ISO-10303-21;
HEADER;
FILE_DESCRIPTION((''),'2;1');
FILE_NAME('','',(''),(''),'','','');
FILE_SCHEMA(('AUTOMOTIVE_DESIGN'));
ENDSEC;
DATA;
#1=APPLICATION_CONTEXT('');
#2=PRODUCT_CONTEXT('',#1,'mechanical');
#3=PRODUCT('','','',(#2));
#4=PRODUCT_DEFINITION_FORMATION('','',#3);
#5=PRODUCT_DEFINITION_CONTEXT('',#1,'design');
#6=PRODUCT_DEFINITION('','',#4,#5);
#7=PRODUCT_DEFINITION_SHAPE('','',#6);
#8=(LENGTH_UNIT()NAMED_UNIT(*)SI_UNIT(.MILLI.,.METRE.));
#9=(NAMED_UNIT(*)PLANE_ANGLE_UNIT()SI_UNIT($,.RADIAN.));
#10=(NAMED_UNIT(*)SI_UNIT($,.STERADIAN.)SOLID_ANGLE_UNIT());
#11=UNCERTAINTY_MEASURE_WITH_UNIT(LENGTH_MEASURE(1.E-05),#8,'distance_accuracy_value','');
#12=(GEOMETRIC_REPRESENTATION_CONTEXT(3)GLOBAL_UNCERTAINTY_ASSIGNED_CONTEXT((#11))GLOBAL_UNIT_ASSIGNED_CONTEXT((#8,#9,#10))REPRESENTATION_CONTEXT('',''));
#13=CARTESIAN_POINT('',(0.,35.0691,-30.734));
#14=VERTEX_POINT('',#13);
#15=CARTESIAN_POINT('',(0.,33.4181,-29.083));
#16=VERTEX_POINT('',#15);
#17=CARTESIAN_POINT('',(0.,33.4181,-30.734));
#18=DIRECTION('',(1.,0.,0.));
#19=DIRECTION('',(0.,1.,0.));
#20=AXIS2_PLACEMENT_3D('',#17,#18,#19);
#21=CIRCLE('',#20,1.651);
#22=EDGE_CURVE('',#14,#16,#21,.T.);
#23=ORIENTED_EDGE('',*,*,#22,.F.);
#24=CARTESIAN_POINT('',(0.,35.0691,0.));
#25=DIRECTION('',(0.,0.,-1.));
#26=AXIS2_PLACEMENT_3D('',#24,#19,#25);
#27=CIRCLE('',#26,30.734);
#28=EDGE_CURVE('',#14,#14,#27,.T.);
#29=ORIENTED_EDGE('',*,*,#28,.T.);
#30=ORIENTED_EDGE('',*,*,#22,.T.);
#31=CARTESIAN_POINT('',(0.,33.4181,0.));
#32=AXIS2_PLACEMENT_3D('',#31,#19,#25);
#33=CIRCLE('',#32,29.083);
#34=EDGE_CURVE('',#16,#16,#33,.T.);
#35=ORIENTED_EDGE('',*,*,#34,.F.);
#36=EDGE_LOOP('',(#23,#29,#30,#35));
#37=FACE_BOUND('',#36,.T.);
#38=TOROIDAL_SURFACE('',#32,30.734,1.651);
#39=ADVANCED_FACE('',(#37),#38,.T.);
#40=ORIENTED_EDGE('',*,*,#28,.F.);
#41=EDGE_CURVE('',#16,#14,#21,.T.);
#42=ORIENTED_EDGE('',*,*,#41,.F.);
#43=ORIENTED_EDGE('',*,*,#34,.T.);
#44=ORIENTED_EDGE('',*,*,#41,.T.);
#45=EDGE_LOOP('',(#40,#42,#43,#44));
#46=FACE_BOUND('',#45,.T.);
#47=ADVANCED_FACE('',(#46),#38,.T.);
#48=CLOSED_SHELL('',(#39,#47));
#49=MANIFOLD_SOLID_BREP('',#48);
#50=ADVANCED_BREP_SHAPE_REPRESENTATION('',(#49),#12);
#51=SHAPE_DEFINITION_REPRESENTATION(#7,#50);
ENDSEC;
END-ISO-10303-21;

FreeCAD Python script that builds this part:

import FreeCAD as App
import Part
import Sketcher
Q = App.Units.Quantity

doc = App.newDocument("Part")
params = doc.addObject("Spreadsheet::Sheet", "Params")
for row, (alias, value) in enumerate([
    ("sketch1_diameter", "0.13 in"),
    ("revolution_angle", "360 deg"),
], start=1):
    params.set(f"A{row}", alias)
    params.set(f"B{row}", "=" + value)
    params.setAlias(f"B{row}", alias)

body = doc.addObject("PartDesign::Body", "Body")

# Sketch on YZ plane
sketch1 = doc.addObject("Sketcher::SketchObject", "Sketch")
body.addObject(sketch1)
sketch1.AttachmentSupport = (doc.YZ_Plane, [""])
sketch1.MapMode = "FlatFace"
sketch1.addGeometry(Part.Circle(App.Vector(33.4, -30.7, 0), App.Vector(0, 0, 1), 1.7), False)
sketch1.addConstraint([
    Sketcher.Constraint("Diameter", 0, Q("0.13 in")),
    Sketcher.Constraint("DistanceY", 0, 3, -1, 1, Q("1.21 in")),
    Sketcher.Constraint("DistanceX", -1, 1, 0, 3, 33.418),
])
sketch1.setExpression("Constraints[0]", "Params.sketch1_diameter")
revolution = doc.addObject("PartDesign::Revolution", "Revolution")
body.addObject(revolution)
revolution.Profile = sketch1
revolution.ReferenceAxis = (sketch1, ["H_Axis"])
revolution.setExpression("Angle", "Params.revolution_angle")

doc.recompute()
